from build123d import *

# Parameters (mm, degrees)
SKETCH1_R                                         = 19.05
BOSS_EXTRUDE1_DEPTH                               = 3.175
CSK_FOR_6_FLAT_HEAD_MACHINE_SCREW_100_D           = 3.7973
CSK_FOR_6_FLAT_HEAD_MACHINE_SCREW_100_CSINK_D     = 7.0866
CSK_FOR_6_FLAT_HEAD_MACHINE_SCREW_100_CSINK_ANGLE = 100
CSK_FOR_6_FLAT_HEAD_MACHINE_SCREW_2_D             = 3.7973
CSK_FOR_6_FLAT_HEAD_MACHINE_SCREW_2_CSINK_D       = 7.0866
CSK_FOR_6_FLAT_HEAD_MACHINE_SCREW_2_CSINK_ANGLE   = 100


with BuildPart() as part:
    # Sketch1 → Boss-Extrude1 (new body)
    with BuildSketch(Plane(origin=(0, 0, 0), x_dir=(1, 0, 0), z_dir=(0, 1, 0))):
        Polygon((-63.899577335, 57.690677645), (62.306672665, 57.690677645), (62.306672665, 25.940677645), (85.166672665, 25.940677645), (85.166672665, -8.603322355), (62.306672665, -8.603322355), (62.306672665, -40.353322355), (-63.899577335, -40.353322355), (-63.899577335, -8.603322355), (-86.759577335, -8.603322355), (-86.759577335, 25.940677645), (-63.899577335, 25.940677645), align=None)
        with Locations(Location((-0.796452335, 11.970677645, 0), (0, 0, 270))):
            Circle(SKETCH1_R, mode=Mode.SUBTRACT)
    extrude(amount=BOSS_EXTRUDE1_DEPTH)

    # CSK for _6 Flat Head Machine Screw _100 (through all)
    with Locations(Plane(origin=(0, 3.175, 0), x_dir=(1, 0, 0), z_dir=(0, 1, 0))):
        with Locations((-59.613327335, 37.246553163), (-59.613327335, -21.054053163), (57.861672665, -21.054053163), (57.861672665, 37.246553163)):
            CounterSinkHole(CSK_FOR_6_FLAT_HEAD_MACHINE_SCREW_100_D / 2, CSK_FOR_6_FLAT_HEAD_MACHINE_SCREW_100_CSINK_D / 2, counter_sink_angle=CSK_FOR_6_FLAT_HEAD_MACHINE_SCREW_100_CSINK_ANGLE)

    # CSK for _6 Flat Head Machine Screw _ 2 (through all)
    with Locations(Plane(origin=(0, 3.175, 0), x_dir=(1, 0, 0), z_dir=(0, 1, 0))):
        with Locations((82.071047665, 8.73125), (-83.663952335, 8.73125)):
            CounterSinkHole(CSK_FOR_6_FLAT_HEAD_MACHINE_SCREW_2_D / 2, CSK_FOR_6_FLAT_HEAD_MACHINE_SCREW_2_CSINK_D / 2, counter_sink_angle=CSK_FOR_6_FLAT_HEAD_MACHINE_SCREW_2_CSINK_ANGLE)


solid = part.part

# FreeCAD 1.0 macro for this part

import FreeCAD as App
import Part
import Sketcher
from FreeCAD import Vector
Q = App.Units.Quantity


def add_polygon(sketch, points):
    """Adds a closed chain of lines whose ends are joined by coincident constraints."""
    first, n = sketch.GeometryCount, len(points)
    for a, b in zip(points, points[1:] + points[:1]):
        sketch.addGeometry(Part.LineSegment(App.Vector(*a, 0), App.Vector(*b, 0)), False)
    for i in range(n):
        sketch.addConstraint(Sketcher.Constraint("Coincident", first + i, 2, first + (i + 1) % n, 1))

doc = App.newDocument("Part")
body = doc.addObject("PartDesign::Body", "Body")

sketch1 = body.newObject("Sketcher::SketchObject", "Sketch")
sketch1.AttachmentSupport = (doc.getObject("XZ_Plane"), [""])
sketch1.MapMode = "FlatFace"
add_polygon(sketch1, [(62, -58), (-64, -58), (-64, -26), (-87, -26), (-87, 9), (-64, 9), (-64, 40), (62, 40), (62, 9), (85, 9), (85, -26), (62, -26)])
sketch1.addGeometry(Part.Circle(Vector(-1, -12, 0), Vector(0, 0, 1), 19), False)
sketch1.addConstraint([
    Sketcher.Constraint("Horizontal", 0),
    Sketcher.Constraint("Vertical", 1),
    Sketcher.Constraint("Horizontal", 2),
    Sketcher.Constraint("Vertical", 3),
    Sketcher.Constraint("Horizontal", 4),
    Sketcher.Constraint("Vertical", 5),
    Sketcher.Constraint("Horizontal", 6),
    Sketcher.Constraint("Vertical", 7),
    Sketcher.Constraint("Horizontal", 8),
    Sketcher.Constraint("Vertical", 9),
    Sketcher.Constraint("Horizontal", 10),
    Sketcher.Constraint("Vertical", 11),
    Sketcher.Constraint("Horizontal", 4, 2, 7, 2),
    Sketcher.Constraint("Horizontal", 2, 2, 9, 2),
    Sketcher.Constraint("Vertical", 1, 2, 4, 2),
    Sketcher.Constraint("Vertical", 7, 2, 10, 2),
    Sketcher.Constraint("Equal", 4, 8),
    Sketcher.Constraint("Equal", 1, 5),
    Sketcher.Constraint("Diameter", 12, Q("1.5 in")),
    Sketcher.Constraint("DistanceX", 2, 2, 2, 1, Q("0.9 in")),
    Sketcher.Constraint("DistanceY", 1, 1, 1, 2, Q("1.25 in")),
    Sketcher.Constraint("DistanceY", 3, 1, 3, 2, Q("1.36 in")),
    Sketcher.Constraint("DistanceY", 0, 2, 12, 3, Q("1.8 in")),
    Sketcher.Constraint("DistanceX", 0, 2, 0, 1, Q("4.96875 in")),
    Sketcher.Constraint("DistanceX", 0, 2, 12, 3, Q("2.484375 in")),
    Sketcher.Constraint("DistanceX", 12, 3, -1, 1, 0.796452),
    Sketcher.Constraint("DistanceY", 12, 3, -1, 1, 11.970678),
])
pad1 = body.newObject("PartDesign::Pad", "Pad")
pad1.Profile = sketch1
pad1.Length = Q("0.125 in")
pad1.Reversed = True

sketch2 = body.newObject("Sketcher::SketchObject", "Sketch001")
sketch2.AttachmentSupport = (doc.getObject("XZ_Plane"), [""])
sketch2.MapMode = "FlatFace"
sketch2.AttachmentOffset = App.Placement(Vector(0, 0, -0.125 * 25.4), App.Rotation())
sketch2.addGeometry([
    Part.Circle(Vector(-59.6, -37.2, 0), Vector(0, 0, 1), 1.9),
    Part.Circle(Vector(-59.6, 21.1, 0), Vector(0, 0, 1), 1.9),
    Part.Circle(Vector(57.9, 21.1, 0), Vector(0, 0, 1), 1.9),
    Part.Circle(Vector(57.9, -37.2, 0), Vector(0, 0, 1), 1.9),
], False)
sketch2.addConstraint([
    Sketcher.Constraint("Equal", 0, 1),
    Sketcher.Constraint("Equal", 1, 2),
    Sketcher.Constraint("Equal", 2, 3),
    Sketcher.Constraint("Horizontal", 1, 3, 2, 3),
    Sketcher.Constraint("Horizontal", 0, 3, 3, 3),
    Sketcher.Constraint("Vertical", 0, 3, 1, 3),
    Sketcher.Constraint("Vertical", 2, 3, 3, 3),
    Sketcher.Constraint("Diameter", 0, Q("0.1495 in")),
    Sketcher.Constraint("DistanceX", 1, 3, 2, 3, Q("4.625 in")),
    Sketcher.Constraint("DistanceX", 0, 3, -1, 1, 59.613327),
    Sketcher.Constraint("DistanceY", 0, 3, -1, 1, 37.246553),
    Sketcher.Constraint("DistanceY", -1, 1, 1, 3, 21.054053),
])
doc.recompute()
hole = body.newObject("PartDesign::Hole", "Hole")
hole.Profile = sketch2
hole.ThreadType = "None"
hole.Diameter = Q("0.1495 in")
hole.DepthType = "ThroughAll"
hole.HoleCutType = "Countersink"
hole.HoleCutDiameter = Q("0.279 in")
hole.HoleCutCountersinkAngle = 100
hole.Reversed = True

sketch3 = body.newObject("Sketcher::SketchObject", "Sketch002")
sketch3.AttachmentSupport = (doc.getObject("XZ_Plane"), [""])
sketch3.MapMode = "FlatFace"
sketch3.AttachmentOffset = App.Placement(Vector(0, 0, -0.125 * 25.4), App.Rotation())
sketch3.addGeometry([
    Part.Circle(Vector(82.1, -8.7, 0), Vector(0, 0, 1), 1.9),
    Part.Circle(Vector(-83.7, -8.7, 0), Vector(0, 0, 1), 1.9),
], False)
sketch3.addConstraint([
    Sketcher.Constraint("Equal", 0, 1),
    Sketcher.Constraint("Horizontal", 0, 3, 1, 3),
    Sketcher.Constraint("Diameter", 0, Q("0.1495 in")),
    Sketcher.Constraint("DistanceY", 0, 3, -1, 1, Q("0.34375 in")),
    Sketcher.Constraint("DistanceX", 1, 3, 0, 3, Q("6.525 in")),
    Sketcher.Constraint("DistanceX", -1, 1, 0, 3, 82.071048),
])
doc.recompute()
hole2 = body.newObject("PartDesign::Hole", "Hole001")
hole2.Profile = sketch3
hole2.ThreadType = "None"
hole2.Diameter = Q("0.1495 in")
hole2.DepthType = "ThroughAll"
hole2.HoleCutType = "Countersink"
hole2.HoleCutDiameter = Q("0.279 in")
hole2.HoleCutCountersinkAngle = 100
hole2.Reversed = True

doc.recompute()
